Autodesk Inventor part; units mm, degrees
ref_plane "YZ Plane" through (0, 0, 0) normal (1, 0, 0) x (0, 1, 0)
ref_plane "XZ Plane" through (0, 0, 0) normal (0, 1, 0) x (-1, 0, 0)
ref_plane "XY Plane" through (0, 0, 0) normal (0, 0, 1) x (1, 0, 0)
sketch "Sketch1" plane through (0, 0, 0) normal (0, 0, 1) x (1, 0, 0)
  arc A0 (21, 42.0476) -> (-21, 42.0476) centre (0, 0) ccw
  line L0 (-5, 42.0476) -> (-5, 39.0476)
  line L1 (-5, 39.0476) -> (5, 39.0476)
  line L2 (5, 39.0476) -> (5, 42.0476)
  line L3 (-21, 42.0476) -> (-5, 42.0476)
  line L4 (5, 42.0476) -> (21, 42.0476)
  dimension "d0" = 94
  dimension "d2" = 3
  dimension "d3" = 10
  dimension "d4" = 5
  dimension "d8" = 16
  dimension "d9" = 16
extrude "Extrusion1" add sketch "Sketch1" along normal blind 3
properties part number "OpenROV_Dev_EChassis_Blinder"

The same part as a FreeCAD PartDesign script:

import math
import FreeCAD as App
import Part
import Sketcher

V = App.Vector
Q = App.Units.Quantity

doc = App.newDocument("Part")
body = doc.addObject("PartDesign::Body", "Body")

sketch1 = body.newObject("Sketcher::SketchObject", "Sketch")
sketch1.AttachmentSupport = (doc.getObject("XY_Plane"), [""])
sketch1.MapMode = "FlatFace"
sketch1.addGeometry([
    Part.LineSegment(V(5, 42.0476, 0), V(21, 42.0476, 0)),
    Part.ArcOfCircle(Part.Circle(V(0, 0, 0), V(0, 0, 1), 47.000007), math.radians(63.460899), math.radians(116.539101)),
    Part.LineSegment(V(-21, 42.0476, 0), V(-5, 42.0476, 0)),
    Part.LineSegment(V(-5, 42.0476, 0), V(-5, 39.0476, 0)),
    Part.LineSegment(V(-5, 39.0476, 0), V(5, 39.0476, 0)),
    Part.LineSegment(V(5, 39.0476, 0), V(5, 42.0476, 0)),
], False)
sketch1.addConstraint([
    Sketcher.Constraint("Coincident", 0, 2, 1, 1),
    Sketcher.Constraint("Coincident", 1, 2, 2, 1),
    Sketcher.Constraint("Coincident", 2, 2, 3, 1),
    Sketcher.Constraint("Coincident", 3, 2, 4, 1),
    Sketcher.Constraint("Coincident", 4, 2, 5, 1),
    Sketcher.Constraint("Coincident", 5, 2, 0, 1),
    Sketcher.Constraint("Horizontal", 0),
    Sketcher.Constraint("Horizontal", 2),
    Sketcher.Constraint("Vertical", 3),
    Sketcher.Constraint("Horizontal", 4),
    Sketcher.Constraint("Vertical", 5),
    Sketcher.Constraint("Coincident", 1, 3, -1, 1),
    Sketcher.Constraint("Symmetric", 2, 2, 5, 2, -2),
    Sketcher.Constraint("Radius", 1, Q("47 mm")),
    Sketcher.Constraint("DistanceX", 0, 1, 0, 2, Q("16 mm")),
    Sketcher.Constraint("DistanceX", 4, 1, 4, 2, Q("10 mm")),
    Sketcher.Constraint("DistanceY", 3, 2, 3, 1, Q("3 mm")),
])
pad1 = body.newObject("PartDesign::Pad", "Pad")
pad1.Profile = sketch1
pad1.Length = 3

doc.recompute()
